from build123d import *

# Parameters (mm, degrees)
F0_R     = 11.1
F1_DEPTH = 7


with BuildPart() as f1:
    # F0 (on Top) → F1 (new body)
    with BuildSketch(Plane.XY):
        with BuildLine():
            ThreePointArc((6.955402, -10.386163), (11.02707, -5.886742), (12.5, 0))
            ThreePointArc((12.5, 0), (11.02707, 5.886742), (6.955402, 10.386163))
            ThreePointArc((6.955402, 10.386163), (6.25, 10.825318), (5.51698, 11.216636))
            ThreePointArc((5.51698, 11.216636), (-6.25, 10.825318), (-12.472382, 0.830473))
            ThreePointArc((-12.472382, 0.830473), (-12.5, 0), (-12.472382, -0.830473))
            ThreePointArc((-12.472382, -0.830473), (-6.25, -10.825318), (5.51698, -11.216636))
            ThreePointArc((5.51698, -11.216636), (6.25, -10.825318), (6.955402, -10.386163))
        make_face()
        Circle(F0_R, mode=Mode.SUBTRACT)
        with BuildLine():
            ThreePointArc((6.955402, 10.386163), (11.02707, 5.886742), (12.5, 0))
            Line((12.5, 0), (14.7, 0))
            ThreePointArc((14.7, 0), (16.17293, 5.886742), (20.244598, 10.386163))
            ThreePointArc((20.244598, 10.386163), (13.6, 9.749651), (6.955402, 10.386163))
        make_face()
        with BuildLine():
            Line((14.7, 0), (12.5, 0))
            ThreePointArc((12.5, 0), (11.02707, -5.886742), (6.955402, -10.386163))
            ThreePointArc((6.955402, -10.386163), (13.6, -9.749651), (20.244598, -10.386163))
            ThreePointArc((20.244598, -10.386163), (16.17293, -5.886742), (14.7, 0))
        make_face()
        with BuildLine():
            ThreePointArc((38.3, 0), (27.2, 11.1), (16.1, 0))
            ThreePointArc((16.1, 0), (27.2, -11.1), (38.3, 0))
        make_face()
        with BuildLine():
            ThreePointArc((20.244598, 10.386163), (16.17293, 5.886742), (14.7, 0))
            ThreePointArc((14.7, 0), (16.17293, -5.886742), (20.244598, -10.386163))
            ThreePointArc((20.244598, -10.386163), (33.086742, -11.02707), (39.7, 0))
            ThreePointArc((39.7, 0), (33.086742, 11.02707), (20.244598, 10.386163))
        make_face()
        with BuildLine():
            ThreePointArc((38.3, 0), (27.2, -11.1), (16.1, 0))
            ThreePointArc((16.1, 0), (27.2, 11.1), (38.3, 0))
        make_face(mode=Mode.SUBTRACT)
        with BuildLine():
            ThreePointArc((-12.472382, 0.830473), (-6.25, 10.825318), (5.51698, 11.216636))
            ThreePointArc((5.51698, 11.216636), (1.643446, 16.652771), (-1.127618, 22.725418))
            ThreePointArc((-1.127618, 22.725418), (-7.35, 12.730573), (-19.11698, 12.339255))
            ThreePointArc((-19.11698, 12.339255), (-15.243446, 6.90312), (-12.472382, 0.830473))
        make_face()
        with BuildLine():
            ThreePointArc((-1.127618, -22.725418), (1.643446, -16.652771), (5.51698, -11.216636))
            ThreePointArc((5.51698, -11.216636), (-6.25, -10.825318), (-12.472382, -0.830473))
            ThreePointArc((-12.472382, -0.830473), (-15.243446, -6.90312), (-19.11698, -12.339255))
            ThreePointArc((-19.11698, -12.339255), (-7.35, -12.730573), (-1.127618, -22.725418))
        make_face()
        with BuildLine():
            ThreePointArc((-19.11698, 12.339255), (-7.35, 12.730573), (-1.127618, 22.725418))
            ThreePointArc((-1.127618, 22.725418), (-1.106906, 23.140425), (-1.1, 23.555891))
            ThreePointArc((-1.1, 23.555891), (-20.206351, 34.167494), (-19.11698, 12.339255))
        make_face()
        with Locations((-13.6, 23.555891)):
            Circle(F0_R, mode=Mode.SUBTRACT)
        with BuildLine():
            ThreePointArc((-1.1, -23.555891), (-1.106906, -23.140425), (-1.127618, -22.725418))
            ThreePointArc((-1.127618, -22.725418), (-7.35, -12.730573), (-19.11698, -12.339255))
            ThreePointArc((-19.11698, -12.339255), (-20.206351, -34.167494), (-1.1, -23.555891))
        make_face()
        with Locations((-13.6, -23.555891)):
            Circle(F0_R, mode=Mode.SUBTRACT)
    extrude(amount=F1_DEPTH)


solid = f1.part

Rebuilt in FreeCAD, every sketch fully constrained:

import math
import FreeCAD as App
import Part
import Sketcher

V = App.Vector

doc = App.newDocument("Part")
body = doc.addObject("PartDesign::Body", "Body")

# Sketch on XY plane
sketch1 = body.newObject("Sketcher::SketchObject", "Sketch")
sketch1.AttachmentSupport = (doc.getObject("XY_Plane"), [""])
sketch1.MapMode = "FlatFace"
sketch1.addGeometry([
    Part.ArcOfCircle(Part.Circle(V(13.6, 44.749643, 0), V(0, 0, 1), 34.999992), math.radians(-100.94378), math.radians(-79.05622)),  # 0
    Part.ArcOfCircle(Part.Circle(V(0.000134, 0.000228, 0), V(0, 0, 1), 12.499735), math.radians(56.190514), math.radians(63.809506)),  # 1
    Part.ArcOfCircle(Part.Circle(V(31.954354, 34.152781, 0), V(0, 0, 1), 35.000022), math.radians(-160.943772), math.radians(-139.056231)),  # 2
    Part.ArcOfCircle(Part.Circle(V(-13.599232, 23.555867, 0), V(0, 0, 1), 12.499232), math.radians(-3.809536), math.radians(0.000112)),  # 3
    Part.ArcOfCircle(Part.Circle(V(-13.6, 23.555891, 0), V(0, 0, 1), 12.5), math.radians(0), math.radians(243.809414)),  # 4
    Part.ArcOfCircle(Part.Circle(V(-45.554354, -10.59689, 0), V(0, 0, 1), 35.000022), math.radians(19.056228), math.radians(40.943769)),  # 5
    Part.ArcOfCircle(Part.Circle(V(-0.000033, 0, 0), V(0, 0, 1), 12.499967), math.radians(176.190576), math.radians(183.809424)),  # 6
    Part.ArcOfCircle(Part.Circle(V(-45.554354, 10.59689, 0), V(0, 0, 1), 35.000022), math.radians(-40.943769), math.radians(-19.056228)),  # 7
    Part.ArcOfCircle(Part.Circle(V(-13.6, -23.555891, 0), V(0, 0, 1), 12.5), math.radians(116.190586), math.radians(360)),  # 8
    Part.ArcOfCircle(Part.Circle(V(-13.599232, -23.555867, 0), V(0, 0, 1), 12.499232), math.radians(-0.000112), math.radians(3.809536)),  # 9
    Part.ArcOfCircle(Part.Circle(V(31.954354, -34.152781, 0), V(0, 0, 1), 35.000022), math.radians(139.056231), math.radians(160.943772)),  # 10
    Part.ArcOfCircle(Part.Circle(V(0.000134, -0.000228, 0), V(0, 0, 1), 12.499735), math.radians(-63.809506), math.radians(-56.190514)),  # 11
    Part.ArcOfCircle(Part.Circle(V(13.6, -44.749643, 0), V(0, 0, 1), 34.999992), math.radians(79.05622), math.radians(100.94378)),  # 12
    Part.ArcOfCircle(Part.Circle(V(27.2, 0, 0), V(0, 0, 1), 12.5), math.radians(-123.809417), math.radians(0.000001)),  # 13
    Part.ArcOfCircle(Part.Circle(V(27.2, 0, 0), V(0, 0, 1), 12.5), math.radians(-0.000001), math.radians(123.809417)),  # 14
    Part.Circle(V(-13.6, -23.555891, 0), V(0, 0, 1), 11.1),  # 15
    Part.Circle(V(0, 0, 0), V(0, 0, 1), 11.1),  # 16
    Part.Circle(V(-13.6, 23.555891, 0), V(0, 0, 1), 11.1),  # 17
    Part.Circle(V(27.2, 0, 0), V(0, 0, 1), 11.1),  # 18
], False)
sketch1.addConstraint([
    Sketcher.Constraint("Coincident", 0, 1, 1, 1),
    Sketcher.Constraint("Coincident", 1, 2, 2, 2),
    Sketcher.Constraint("Coincident", 2, 1, 3, 1),
    Sketcher.Constraint("Coincident", 3, 2, 4, 1),
    Sketcher.Constraint("Coincident", 4, 2, 5, 2),
    Sketcher.Constraint("Coincident", 5, 1, 6, 1),
    Sketcher.Constraint("Coincident", 6, 2, 7, 2),
    Sketcher.Constraint("Coincident", 7, 1, 8, 1),
    Sketcher.Constraint("Coincident", 8, 2, 9, 1),
    Sketcher.Constraint("Coincident", 9, 2, 10, 2),
    Sketcher.Constraint("Coincident", 10, 1, 11, 1),
    Sketcher.Constraint("Coincident", 11, 2, 12, 2),
    Sketcher.Constraint("Coincident", 12, 1, 13, 1),
    Sketcher.Constraint("Coincident", 13, 2, 14, 1),
    Sketcher.Constraint("Coincident", 14, 2, 0, 2),
    Sketcher.Constraint("Coincident", 16, 3, -1, 1),
    Sketcher.Constraint("Coincident", 14, 3, 13, 3),
    Sketcher.Constraint("Coincident", 15, 3, 8, 3),
    Sketcher.Constraint("Coincident", 17, 3, 4, 3),
    Sketcher.Constraint("Coincident", 18, 3, 13, 3),
    Sketcher.Constraint("PointOnObject", 6, 3, -1),
    Sketcher.Constraint("PointOnObject", 13, 3, -1),
    Sketcher.Constraint("PointOnObject", 13, 2, -1),
    Sketcher.Constraint("Diameter", 15, 22.2),
    Sketcher.Constraint("Diameter", 16, 22.2),
    Sketcher.Constraint("Diameter", 17, 22.2),
    Sketcher.Constraint("Diameter", 18, 22.2),
    Sketcher.Constraint("Radius", 4, 12.5),
    Sketcher.Constraint("Radius", 8, 12.5),
    Sketcher.Constraint("Radius", 13, 12.5),
    Sketcher.Constraint("DistanceX", -1, 1, 0, 3, 13.6),
    Sketcher.Constraint("DistanceX", 4, 3, -1, 1, 13.6),
    Sketcher.Constraint("DistanceX", 8, 3, -1, 1, 13.6),
    Sketcher.Constraint("DistanceX", -1, 1, 12, 3, 13.6),
    Sketcher.Constraint("DistanceX", -1, 1, 13, 3, 27.2),
    Sketcher.Constraint("Radius", 2, 35.000022),
    Sketcher.Constraint("Radius", 5, 35.000022),
    Sketcher.Constraint("Radius", 7, 35.000022),
    Sketcher.Constraint("Radius", 10, 35.000022),
    Sketcher.Constraint("Radius", 0, 34.999992),
    Sketcher.Constraint("Radius", 1, 12.499735),
    Sketcher.Constraint("Radius", 3, 12.499232),
    Sketcher.Constraint("Radius", 6, 12.499967),
    Sketcher.Constraint("Radius", 9, 12.499232),
    Sketcher.Constraint("Radius", 11, 12.499735),
    Sketcher.Constraint("Radius", 12, 34.999992),
    Sketcher.Constraint("DistanceY", 7, 3, 4, 3, 12.959001),
    Sketcher.Constraint("DistanceY", 8, 3, 5, 3, 12.959001),
    Sketcher.Constraint("DistanceX", -1, 1, 14, 2, 20.244598),
    Sketcher.Constraint("DistanceX", 3, 3, 6, 3, 13.599199),
    Sketcher.Constraint("DistanceX", 2, 1, 1, 2, 6.644598),
    Sketcher.Constraint("DistanceY", 11, 3, 5, 1, 0.830701),
    Sketcher.Constraint("DistanceX", 4, 2, 5, 1, 6.644598),
    Sketcher.Constraint("DistanceY", 6, 2, 1, 3, 0.830701),
    Sketcher.Constraint("DistanceY", -1, 1, 1, 3, 0.000228),
    Sketcher.Constraint("DistanceY", -1, 1, 2, 3, 34.152781),
    Sketcher.Constraint("DistanceY", -1, 1, 4, 3, 23.555891),
    Sketcher.Constraint("DistanceY", 5, 3, -1, 1, 10.59689),
    Sketcher.Constraint("DistanceY", 10, 3, -1, 1, 34.152781),
    Sketcher.Constraint("DistanceX", -1, 1, 1, 2, 5.51698),
    Sketcher.Constraint("DistanceY", -1, 1, 3, 2, 23.555891),
    Sketcher.Constraint("DistanceY", 8, 2, -1, 1, 23.555891),
    Sketcher.Constraint("DistanceX", 9, 2, -1, 1, 1.127618),
    Sketcher.Constraint("DistanceY", 9, 2, -1, 1, 22.725418),
    Sketcher.Constraint("DistanceX", -1, 1, 10, 1, 5.51698),
    Sketcher.Constraint("DistanceX", 1, 3, 2, 3, 31.95422),
    Sketcher.Constraint("DistanceY", 12, 3, 10, 3, 10.596862),
])
pad1 = body.newObject("PartDesign::Pad", "Pad")
pad1.Profile = sketch1
pad1.Length = 7

doc.recompute()
